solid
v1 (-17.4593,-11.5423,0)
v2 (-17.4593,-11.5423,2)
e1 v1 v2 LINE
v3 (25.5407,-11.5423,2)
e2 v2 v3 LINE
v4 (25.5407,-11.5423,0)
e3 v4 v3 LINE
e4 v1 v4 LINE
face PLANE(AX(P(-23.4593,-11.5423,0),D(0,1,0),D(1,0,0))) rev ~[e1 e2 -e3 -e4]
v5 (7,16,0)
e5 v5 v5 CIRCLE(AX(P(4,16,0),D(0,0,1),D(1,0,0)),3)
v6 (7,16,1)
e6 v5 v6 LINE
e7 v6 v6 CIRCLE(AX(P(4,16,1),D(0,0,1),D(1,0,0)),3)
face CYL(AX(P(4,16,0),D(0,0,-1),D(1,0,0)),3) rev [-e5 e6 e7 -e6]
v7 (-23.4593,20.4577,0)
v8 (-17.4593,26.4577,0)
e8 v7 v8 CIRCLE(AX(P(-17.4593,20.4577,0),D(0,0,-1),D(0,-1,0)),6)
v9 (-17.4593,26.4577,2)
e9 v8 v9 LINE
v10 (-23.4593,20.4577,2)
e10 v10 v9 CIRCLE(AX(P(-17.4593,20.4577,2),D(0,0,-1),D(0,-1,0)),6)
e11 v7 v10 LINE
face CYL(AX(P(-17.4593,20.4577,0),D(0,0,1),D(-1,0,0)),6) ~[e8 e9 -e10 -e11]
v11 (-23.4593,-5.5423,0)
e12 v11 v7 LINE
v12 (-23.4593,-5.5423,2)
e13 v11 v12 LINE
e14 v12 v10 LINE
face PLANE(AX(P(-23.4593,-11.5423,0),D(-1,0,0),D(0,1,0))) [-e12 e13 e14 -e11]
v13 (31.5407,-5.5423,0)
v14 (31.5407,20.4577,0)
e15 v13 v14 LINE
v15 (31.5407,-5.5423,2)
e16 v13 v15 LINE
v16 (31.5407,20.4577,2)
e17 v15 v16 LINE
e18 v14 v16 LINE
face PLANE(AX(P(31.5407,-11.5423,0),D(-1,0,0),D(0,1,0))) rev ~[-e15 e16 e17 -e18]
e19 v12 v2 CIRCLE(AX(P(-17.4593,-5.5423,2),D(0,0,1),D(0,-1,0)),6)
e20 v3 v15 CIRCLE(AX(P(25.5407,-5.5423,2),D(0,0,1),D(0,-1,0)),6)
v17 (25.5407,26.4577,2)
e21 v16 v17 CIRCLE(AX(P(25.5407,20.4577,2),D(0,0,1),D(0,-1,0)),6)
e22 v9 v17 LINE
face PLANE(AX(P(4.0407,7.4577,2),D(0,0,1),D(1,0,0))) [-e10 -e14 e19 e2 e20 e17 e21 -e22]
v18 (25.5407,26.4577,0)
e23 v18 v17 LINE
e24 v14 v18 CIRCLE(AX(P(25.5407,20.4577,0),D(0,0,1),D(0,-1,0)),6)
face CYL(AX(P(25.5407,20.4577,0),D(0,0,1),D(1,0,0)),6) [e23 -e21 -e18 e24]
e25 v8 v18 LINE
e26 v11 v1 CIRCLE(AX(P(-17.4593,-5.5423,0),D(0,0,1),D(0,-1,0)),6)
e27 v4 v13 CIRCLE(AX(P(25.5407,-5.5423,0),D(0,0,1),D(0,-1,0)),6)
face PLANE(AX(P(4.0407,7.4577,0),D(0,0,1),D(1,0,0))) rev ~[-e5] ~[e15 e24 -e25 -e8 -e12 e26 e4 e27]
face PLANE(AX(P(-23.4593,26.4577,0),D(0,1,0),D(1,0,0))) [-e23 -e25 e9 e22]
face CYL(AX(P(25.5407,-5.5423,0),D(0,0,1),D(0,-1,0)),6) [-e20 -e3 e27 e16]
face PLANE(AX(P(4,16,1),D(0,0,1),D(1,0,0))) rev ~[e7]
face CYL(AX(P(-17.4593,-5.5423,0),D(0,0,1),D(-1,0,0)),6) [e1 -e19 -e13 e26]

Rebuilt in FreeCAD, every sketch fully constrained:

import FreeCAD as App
import Part
import Sketcher
from FreeCAD import Vector
Q = App.Units.Quantity


def edges_at(feature, points):
    """Names of the edges that pass closest to the given points."""
    edges = feature.Shape.Edges
    near = lambda p: min(range(len(edges)), key=lambda i: edges[i].distToShape(Part.Vertex(*p))[0])
    return sorted({f"Edge{near(p) + 1}" for p in points})

doc = App.newDocument("Part")
body = doc.addObject("PartDesign::Body", "Body")

sketch1 = body.newObject("Sketcher::SketchObject", "Sketch")
sketch1.AttachmentSupport = (doc.getObject("XY_Plane"), [""])
sketch1.MapMode = "FlatFace"
sketch1.addGeometry(Part.Circle(Vector(4, 16, 0), Vector(0, 0, 1), 3), False)
sketch1.addConstraint([
    Sketcher.Constraint("Diameter", 0, Q("6 mm")),
    Sketcher.Constraint("DistanceX", -1, 1, 0, 3, Q("4 mm")),
    Sketcher.Constraint("DistanceY", -1, 1, 0, 3, Q("16 mm")),
])
pad1 = body.newObject("PartDesign::Pad", "Pad")
pad1.Profile = sketch1
pad1.Length = 1
body2 = doc.addObject("PartDesign::Body", "Body001")

sketch2 = body2.newObject("Sketcher::SketchObject", "Sketch001")
sketch2.AttachmentSupport = (doc.getObject("XY_Plane001"), [""])
sketch2.MapMode = "FlatFace"
sketch2.addGeometry([
    Part.LineSegment(Vector(-23, 26, 0), Vector(-23, -12, 0)),
    Part.LineSegment(Vector(-23, -12, 0), Vector(32, -12, 0)),
    Part.LineSegment(Vector(32, -12, 0), Vector(32, 26, 0)),
    Part.LineSegment(Vector(32, 26, 0), Vector(-23, 26, 0)),
], False)
sketch2.addConstraint([
    Sketcher.Constraint("Coincident", 0, 2, 1, 1),
    Sketcher.Constraint("Coincident", 1, 2, 2, 1),
    Sketcher.Constraint("Coincident", 2, 2, 3, 1),
    Sketcher.Constraint("Coincident", 3, 2, 0, 1),
    Sketcher.Constraint("Vertical", 0),
    Sketcher.Constraint("Horizontal", 1),
    Sketcher.Constraint("Vertical", 2),
    Sketcher.Constraint("Horizontal", 3),
    Sketcher.Constraint("DistanceX", 1, 1, 1, 2, Q("55 mm")),
    Sketcher.Constraint("DistanceY", 0, 2, 0, 1, Q("38 mm")),
    Sketcher.Constraint("DistanceX", 0, 2, -1, 1, Q("23.4593 mm")),
    Sketcher.Constraint("DistanceY", 0, 2, -1, 1, Q("11.5423 mm")),
])
pad2 = body2.newObject("PartDesign::Pad", "Pad001")
pad2.Profile = sketch2
pad2.Length = 2
doc.recompute()

fillet = body2.newObject("PartDesign::Fillet", "Fillet")
fillet.Base = (pad2, edges_at(pad2, [
    (-23.459, -11.542, 1),
    (-23.459, 26.458, 1),
    (31.541, -11.542, 1),
    (31.541, 26.458, 1),
]))
fillet.Radius = 6
doc.recompute()

boolean = body2.newObject("PartDesign::Boolean", "Boolean")
boolean.Type = "Cut"
boolean.addObjects([body])

doc.recompute()
